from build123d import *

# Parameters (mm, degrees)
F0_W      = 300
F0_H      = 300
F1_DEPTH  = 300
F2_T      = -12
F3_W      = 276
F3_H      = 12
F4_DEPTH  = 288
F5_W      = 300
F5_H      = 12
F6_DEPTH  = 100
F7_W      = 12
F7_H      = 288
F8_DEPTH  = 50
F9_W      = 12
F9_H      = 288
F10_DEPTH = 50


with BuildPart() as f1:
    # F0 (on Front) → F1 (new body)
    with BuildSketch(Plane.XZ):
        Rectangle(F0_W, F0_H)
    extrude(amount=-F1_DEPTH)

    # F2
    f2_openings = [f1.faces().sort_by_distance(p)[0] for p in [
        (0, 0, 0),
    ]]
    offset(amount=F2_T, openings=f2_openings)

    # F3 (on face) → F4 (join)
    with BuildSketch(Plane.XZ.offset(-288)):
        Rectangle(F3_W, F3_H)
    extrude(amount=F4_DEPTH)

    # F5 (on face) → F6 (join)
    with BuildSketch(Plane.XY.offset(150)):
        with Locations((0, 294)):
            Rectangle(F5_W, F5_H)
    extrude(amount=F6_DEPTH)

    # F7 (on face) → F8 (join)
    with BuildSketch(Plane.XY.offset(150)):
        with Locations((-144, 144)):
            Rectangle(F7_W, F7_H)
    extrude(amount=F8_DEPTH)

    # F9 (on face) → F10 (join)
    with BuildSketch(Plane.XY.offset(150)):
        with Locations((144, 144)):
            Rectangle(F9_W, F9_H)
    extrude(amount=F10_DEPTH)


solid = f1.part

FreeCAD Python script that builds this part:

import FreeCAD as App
import Part
import Sketcher


def faces_at(feature, points):
    """Names of the faces that lie closest to the given points."""
    faces = feature.Shape.Faces
    near = lambda p: min(range(len(faces)), key=lambda i: faces[i].distToShape(Part.Vertex(*p))[0])
    return sorted({f"Face{near(p) + 1}" for p in points})

doc = App.newDocument("Part")
body = doc.addObject("PartDesign::Body", "Body")

# Sketch on XZ plane
sketch1 = body.newObject("Sketcher::SketchObject", "Sketch")
sketch1.AttachmentSupport = (doc.getObject("XZ_Plane"), [""])
sketch1.MapMode = "FlatFace"
sketch1.addGeometry([
    Part.LineSegment(App.Vector(-150, 150, 0), App.Vector(-150, -150, 0)),
    Part.LineSegment(App.Vector(-150, -150, 0), App.Vector(150, -150, 0)),
    Part.LineSegment(App.Vector(150, -150, 0), App.Vector(150, 150, 0)),
    Part.LineSegment(App.Vector(150, 150, 0), App.Vector(-150, 150, 0)),
], False)
sketch1.addConstraint([
    Sketcher.Constraint("Coincident", 0, 2, 1, 1),
    Sketcher.Constraint("Coincident", 1, 2, 2, 1),
    Sketcher.Constraint("Coincident", 2, 2, 3, 1),
    Sketcher.Constraint("Coincident", 3, 2, 0, 1),
    Sketcher.Constraint("Vertical", 0),
    Sketcher.Constraint("Horizontal", 1),
    Sketcher.Constraint("Vertical", 2),
    Sketcher.Constraint("Horizontal", 3),
    Sketcher.Constraint("Symmetric", 0, 2, 2, 2, -1, 1),
    Sketcher.Constraint("Equal", 3, 0),
    Sketcher.Constraint("DistanceX", 1, 1, 1, 2, 300.0),
])
pad1 = body.newObject("PartDesign::Pad", "Pad")
pad1.Profile = sketch1
pad1.Length = 300
pad1.Reversed = True
doc.recompute()

thickness = body.newObject("PartDesign::Thickness", "Thickness")
thickness.Base = (pad1, faces_at(pad1, [(0, 0, 0)]))
thickness.Value = 12
thickness.Reversed = True
thickness.Join = "Arc"

# Sketch on XZ plane
sketch2 = body.newObject("Sketcher::SketchObject", "Sketch001")
sketch2.AttachmentSupport = (doc.getObject("XZ_Plane"), [""])
sketch2.MapMode = "FlatFace"
sketch2.AttachmentOffset = App.Placement(App.Vector(0, 0, -288), App.Rotation())
sketch2.addGeometry([
    Part.LineSegment(App.Vector(-138, 6, 0), App.Vector(-138, -6, 0)),
    Part.LineSegment(App.Vector(-138, -6, 0), App.Vector(138, -6, 0)),
    Part.LineSegment(App.Vector(138, -6, 0), App.Vector(138, 6, 0)),
    Part.LineSegment(App.Vector(138, 6, 0), App.Vector(-138, 6, 0)),
], False)
sketch2.addConstraint([
    Sketcher.Constraint("Coincident", 0, 2, 1, 1),
    Sketcher.Constraint("Coincident", 1, 2, 2, 1),
    Sketcher.Constraint("Coincident", 2, 2, 3, 1),
    Sketcher.Constraint("Coincident", 3, 2, 0, 1),
    Sketcher.Constraint("Vertical", 0),
    Sketcher.Constraint("Horizontal", 1),
    Sketcher.Constraint("Vertical", 2),
    Sketcher.Constraint("Horizontal", 3),
    Sketcher.Constraint("Symmetric", 0, 2, 2, 2, -1, 1),
    Sketcher.Constraint("DistanceX", 1, 1, 1, 2, 276.0),
    Sketcher.Constraint("DistanceY", 0, 2, 0, 1, 12.0),
])
pad2 = body.newObject("PartDesign::Pad", "Pad001")
pad2.Profile = sketch2
pad2.Length = 288

# Sketch on XY plane
sketch3 = body.newObject("Sketcher::SketchObject", "Sketch002")
sketch3.AttachmentSupport = (doc.getObject("XY_Plane"), [""])
sketch3.MapMode = "FlatFace"
sketch3.AttachmentOffset = App.Placement(App.Vector(0, 0, 150), App.Rotation())
sketch3.addGeometry([
    Part.LineSegment(App.Vector(-150, 300, 0), App.Vector(-150, 288, 0)),
    Part.LineSegment(App.Vector(-150, 288, 0), App.Vector(150, 288, 0)),
    Part.LineSegment(App.Vector(150, 288, 0), App.Vector(150, 300, 0)),
    Part.LineSegment(App.Vector(150, 300, 0), App.Vector(-150, 300, 0)),
], False)
sketch3.addConstraint([
    Sketcher.Constraint("Coincident", 0, 2, 1, 1),
    Sketcher.Constraint("Coincident", 1, 2, 2, 1),
    Sketcher.Constraint("Coincident", 2, 2, 3, 1),
    Sketcher.Constraint("Coincident", 3, 2, 0, 1),
    Sketcher.Constraint("Vertical", 0),
    Sketcher.Constraint("Horizontal", 1),
    Sketcher.Constraint("Vertical", 2),
    Sketcher.Constraint("Horizontal", 3),
    Sketcher.Constraint("DistanceX", 1, 1, 1, 2, 300.0),
    Sketcher.Constraint("DistanceY", 0, 2, 0, 1, 12.0),
    Sketcher.Constraint("DistanceX", 0, 2, -1, 1, 150.0),
    Sketcher.Constraint("DistanceY", -1, 1, 0, 2, 288.0),
])
pad3 = body.newObject("PartDesign::Pad", "Pad002")
pad3.Profile = sketch3
pad3.Length = 100

# Sketch on XY plane
sketch4 = body.newObject("Sketcher::SketchObject", "Sketch003")
sketch4.AttachmentSupport = (doc.getObject("XY_Plane"), [""])
sketch4.MapMode = "FlatFace"
sketch4.AttachmentOffset = App.Placement(App.Vector(0, 0, 150), App.Rotation())
sketch4.addGeometry([
    Part.LineSegment(App.Vector(-150, 288, 0), App.Vector(-150, 0, 0)),
    Part.LineSegment(App.Vector(-150, 0, 0), App.Vector(-138, 0, 0)),
    Part.LineSegment(App.Vector(-138, 0, 0), App.Vector(-138, 288, 0)),
    Part.LineSegment(App.Vector(-138, 288, 0), App.Vector(-150, 288, 0)),
], False)
sketch4.addConstraint([
    Sketcher.Constraint("Coincident", 0, 2, 1, 1),
    Sketcher.Constraint("Coincident", 1, 2, 2, 1),
    Sketcher.Constraint("Coincident", 2, 2, 3, 1),
    Sketcher.Constraint("Coincident", 3, 2, 0, 1),
    Sketcher.Constraint("Vertical", 0),
    Sketcher.Constraint("Horizontal", 1),
    Sketcher.Constraint("Vertical", 2),
    Sketcher.Constraint("Horizontal", 3),
    Sketcher.Constraint("PointOnObject", 0, 2, -1),
    Sketcher.Constraint("DistanceX", 1, 1, 1, 2, 12.0),
    Sketcher.Constraint("DistanceY", 0, 2, 0, 1, 288.0),
    Sketcher.Constraint("DistanceX", 0, 2, -1, 1, 150.0),
])
pad4 = body.newObject("PartDesign::Pad", "Pad003")
pad4.Profile = sketch4
pad4.Length = 50

# Sketch on XY plane
sketch5 = body.newObject("Sketcher::SketchObject", "Sketch004")
sketch5.AttachmentSupport = (doc.getObject("XY_Plane"), [""])
sketch5.MapMode = "FlatFace"
sketch5.AttachmentOffset = App.Placement(App.Vector(0, 0, 150), App.Rotation())
sketch5.addGeometry([
    Part.LineSegment(App.Vector(138, 288, 0), App.Vector(138, 0, 0)),
    Part.LineSegment(App.Vector(138, 0, 0), App.Vector(150, 0, 0)),
    Part.LineSegment(App.Vector(150, 0, 0), App.Vector(150, 288, 0)),
    Part.LineSegment(App.Vector(150, 288, 0), App.Vector(138, 288, 0)),
], False)
sketch5.addConstraint([
    Sketcher.Constraint("Coincident", 0, 2, 1, 1),
    Sketcher.Constraint("Coincident", 1, 2, 2, 1),
    Sketcher.Constraint("Coincident", 2, 2, 3, 1),
    Sketcher.Constraint("Coincident", 3, 2, 0, 1),
    Sketcher.Constraint("Vertical", 0),
    Sketcher.Constraint("Horizontal", 1),
    Sketcher.Constraint("Vertical", 2),
    Sketcher.Constraint("Horizontal", 3),
    Sketcher.Constraint("PointOnObject", 0, 2, -1),
    Sketcher.Constraint("DistanceX", 1, 1, 1, 2, 12.0),
    Sketcher.Constraint("DistanceY", 0, 2, 0, 1, 288.0),
    Sketcher.Constraint("DistanceX", -1, 1, 0, 2, 138.0),
])
pad5 = body.newObject("PartDesign::Pad", "Pad004")
pad5.Profile = sketch5
pad5.Length = 50

doc.recompute()
